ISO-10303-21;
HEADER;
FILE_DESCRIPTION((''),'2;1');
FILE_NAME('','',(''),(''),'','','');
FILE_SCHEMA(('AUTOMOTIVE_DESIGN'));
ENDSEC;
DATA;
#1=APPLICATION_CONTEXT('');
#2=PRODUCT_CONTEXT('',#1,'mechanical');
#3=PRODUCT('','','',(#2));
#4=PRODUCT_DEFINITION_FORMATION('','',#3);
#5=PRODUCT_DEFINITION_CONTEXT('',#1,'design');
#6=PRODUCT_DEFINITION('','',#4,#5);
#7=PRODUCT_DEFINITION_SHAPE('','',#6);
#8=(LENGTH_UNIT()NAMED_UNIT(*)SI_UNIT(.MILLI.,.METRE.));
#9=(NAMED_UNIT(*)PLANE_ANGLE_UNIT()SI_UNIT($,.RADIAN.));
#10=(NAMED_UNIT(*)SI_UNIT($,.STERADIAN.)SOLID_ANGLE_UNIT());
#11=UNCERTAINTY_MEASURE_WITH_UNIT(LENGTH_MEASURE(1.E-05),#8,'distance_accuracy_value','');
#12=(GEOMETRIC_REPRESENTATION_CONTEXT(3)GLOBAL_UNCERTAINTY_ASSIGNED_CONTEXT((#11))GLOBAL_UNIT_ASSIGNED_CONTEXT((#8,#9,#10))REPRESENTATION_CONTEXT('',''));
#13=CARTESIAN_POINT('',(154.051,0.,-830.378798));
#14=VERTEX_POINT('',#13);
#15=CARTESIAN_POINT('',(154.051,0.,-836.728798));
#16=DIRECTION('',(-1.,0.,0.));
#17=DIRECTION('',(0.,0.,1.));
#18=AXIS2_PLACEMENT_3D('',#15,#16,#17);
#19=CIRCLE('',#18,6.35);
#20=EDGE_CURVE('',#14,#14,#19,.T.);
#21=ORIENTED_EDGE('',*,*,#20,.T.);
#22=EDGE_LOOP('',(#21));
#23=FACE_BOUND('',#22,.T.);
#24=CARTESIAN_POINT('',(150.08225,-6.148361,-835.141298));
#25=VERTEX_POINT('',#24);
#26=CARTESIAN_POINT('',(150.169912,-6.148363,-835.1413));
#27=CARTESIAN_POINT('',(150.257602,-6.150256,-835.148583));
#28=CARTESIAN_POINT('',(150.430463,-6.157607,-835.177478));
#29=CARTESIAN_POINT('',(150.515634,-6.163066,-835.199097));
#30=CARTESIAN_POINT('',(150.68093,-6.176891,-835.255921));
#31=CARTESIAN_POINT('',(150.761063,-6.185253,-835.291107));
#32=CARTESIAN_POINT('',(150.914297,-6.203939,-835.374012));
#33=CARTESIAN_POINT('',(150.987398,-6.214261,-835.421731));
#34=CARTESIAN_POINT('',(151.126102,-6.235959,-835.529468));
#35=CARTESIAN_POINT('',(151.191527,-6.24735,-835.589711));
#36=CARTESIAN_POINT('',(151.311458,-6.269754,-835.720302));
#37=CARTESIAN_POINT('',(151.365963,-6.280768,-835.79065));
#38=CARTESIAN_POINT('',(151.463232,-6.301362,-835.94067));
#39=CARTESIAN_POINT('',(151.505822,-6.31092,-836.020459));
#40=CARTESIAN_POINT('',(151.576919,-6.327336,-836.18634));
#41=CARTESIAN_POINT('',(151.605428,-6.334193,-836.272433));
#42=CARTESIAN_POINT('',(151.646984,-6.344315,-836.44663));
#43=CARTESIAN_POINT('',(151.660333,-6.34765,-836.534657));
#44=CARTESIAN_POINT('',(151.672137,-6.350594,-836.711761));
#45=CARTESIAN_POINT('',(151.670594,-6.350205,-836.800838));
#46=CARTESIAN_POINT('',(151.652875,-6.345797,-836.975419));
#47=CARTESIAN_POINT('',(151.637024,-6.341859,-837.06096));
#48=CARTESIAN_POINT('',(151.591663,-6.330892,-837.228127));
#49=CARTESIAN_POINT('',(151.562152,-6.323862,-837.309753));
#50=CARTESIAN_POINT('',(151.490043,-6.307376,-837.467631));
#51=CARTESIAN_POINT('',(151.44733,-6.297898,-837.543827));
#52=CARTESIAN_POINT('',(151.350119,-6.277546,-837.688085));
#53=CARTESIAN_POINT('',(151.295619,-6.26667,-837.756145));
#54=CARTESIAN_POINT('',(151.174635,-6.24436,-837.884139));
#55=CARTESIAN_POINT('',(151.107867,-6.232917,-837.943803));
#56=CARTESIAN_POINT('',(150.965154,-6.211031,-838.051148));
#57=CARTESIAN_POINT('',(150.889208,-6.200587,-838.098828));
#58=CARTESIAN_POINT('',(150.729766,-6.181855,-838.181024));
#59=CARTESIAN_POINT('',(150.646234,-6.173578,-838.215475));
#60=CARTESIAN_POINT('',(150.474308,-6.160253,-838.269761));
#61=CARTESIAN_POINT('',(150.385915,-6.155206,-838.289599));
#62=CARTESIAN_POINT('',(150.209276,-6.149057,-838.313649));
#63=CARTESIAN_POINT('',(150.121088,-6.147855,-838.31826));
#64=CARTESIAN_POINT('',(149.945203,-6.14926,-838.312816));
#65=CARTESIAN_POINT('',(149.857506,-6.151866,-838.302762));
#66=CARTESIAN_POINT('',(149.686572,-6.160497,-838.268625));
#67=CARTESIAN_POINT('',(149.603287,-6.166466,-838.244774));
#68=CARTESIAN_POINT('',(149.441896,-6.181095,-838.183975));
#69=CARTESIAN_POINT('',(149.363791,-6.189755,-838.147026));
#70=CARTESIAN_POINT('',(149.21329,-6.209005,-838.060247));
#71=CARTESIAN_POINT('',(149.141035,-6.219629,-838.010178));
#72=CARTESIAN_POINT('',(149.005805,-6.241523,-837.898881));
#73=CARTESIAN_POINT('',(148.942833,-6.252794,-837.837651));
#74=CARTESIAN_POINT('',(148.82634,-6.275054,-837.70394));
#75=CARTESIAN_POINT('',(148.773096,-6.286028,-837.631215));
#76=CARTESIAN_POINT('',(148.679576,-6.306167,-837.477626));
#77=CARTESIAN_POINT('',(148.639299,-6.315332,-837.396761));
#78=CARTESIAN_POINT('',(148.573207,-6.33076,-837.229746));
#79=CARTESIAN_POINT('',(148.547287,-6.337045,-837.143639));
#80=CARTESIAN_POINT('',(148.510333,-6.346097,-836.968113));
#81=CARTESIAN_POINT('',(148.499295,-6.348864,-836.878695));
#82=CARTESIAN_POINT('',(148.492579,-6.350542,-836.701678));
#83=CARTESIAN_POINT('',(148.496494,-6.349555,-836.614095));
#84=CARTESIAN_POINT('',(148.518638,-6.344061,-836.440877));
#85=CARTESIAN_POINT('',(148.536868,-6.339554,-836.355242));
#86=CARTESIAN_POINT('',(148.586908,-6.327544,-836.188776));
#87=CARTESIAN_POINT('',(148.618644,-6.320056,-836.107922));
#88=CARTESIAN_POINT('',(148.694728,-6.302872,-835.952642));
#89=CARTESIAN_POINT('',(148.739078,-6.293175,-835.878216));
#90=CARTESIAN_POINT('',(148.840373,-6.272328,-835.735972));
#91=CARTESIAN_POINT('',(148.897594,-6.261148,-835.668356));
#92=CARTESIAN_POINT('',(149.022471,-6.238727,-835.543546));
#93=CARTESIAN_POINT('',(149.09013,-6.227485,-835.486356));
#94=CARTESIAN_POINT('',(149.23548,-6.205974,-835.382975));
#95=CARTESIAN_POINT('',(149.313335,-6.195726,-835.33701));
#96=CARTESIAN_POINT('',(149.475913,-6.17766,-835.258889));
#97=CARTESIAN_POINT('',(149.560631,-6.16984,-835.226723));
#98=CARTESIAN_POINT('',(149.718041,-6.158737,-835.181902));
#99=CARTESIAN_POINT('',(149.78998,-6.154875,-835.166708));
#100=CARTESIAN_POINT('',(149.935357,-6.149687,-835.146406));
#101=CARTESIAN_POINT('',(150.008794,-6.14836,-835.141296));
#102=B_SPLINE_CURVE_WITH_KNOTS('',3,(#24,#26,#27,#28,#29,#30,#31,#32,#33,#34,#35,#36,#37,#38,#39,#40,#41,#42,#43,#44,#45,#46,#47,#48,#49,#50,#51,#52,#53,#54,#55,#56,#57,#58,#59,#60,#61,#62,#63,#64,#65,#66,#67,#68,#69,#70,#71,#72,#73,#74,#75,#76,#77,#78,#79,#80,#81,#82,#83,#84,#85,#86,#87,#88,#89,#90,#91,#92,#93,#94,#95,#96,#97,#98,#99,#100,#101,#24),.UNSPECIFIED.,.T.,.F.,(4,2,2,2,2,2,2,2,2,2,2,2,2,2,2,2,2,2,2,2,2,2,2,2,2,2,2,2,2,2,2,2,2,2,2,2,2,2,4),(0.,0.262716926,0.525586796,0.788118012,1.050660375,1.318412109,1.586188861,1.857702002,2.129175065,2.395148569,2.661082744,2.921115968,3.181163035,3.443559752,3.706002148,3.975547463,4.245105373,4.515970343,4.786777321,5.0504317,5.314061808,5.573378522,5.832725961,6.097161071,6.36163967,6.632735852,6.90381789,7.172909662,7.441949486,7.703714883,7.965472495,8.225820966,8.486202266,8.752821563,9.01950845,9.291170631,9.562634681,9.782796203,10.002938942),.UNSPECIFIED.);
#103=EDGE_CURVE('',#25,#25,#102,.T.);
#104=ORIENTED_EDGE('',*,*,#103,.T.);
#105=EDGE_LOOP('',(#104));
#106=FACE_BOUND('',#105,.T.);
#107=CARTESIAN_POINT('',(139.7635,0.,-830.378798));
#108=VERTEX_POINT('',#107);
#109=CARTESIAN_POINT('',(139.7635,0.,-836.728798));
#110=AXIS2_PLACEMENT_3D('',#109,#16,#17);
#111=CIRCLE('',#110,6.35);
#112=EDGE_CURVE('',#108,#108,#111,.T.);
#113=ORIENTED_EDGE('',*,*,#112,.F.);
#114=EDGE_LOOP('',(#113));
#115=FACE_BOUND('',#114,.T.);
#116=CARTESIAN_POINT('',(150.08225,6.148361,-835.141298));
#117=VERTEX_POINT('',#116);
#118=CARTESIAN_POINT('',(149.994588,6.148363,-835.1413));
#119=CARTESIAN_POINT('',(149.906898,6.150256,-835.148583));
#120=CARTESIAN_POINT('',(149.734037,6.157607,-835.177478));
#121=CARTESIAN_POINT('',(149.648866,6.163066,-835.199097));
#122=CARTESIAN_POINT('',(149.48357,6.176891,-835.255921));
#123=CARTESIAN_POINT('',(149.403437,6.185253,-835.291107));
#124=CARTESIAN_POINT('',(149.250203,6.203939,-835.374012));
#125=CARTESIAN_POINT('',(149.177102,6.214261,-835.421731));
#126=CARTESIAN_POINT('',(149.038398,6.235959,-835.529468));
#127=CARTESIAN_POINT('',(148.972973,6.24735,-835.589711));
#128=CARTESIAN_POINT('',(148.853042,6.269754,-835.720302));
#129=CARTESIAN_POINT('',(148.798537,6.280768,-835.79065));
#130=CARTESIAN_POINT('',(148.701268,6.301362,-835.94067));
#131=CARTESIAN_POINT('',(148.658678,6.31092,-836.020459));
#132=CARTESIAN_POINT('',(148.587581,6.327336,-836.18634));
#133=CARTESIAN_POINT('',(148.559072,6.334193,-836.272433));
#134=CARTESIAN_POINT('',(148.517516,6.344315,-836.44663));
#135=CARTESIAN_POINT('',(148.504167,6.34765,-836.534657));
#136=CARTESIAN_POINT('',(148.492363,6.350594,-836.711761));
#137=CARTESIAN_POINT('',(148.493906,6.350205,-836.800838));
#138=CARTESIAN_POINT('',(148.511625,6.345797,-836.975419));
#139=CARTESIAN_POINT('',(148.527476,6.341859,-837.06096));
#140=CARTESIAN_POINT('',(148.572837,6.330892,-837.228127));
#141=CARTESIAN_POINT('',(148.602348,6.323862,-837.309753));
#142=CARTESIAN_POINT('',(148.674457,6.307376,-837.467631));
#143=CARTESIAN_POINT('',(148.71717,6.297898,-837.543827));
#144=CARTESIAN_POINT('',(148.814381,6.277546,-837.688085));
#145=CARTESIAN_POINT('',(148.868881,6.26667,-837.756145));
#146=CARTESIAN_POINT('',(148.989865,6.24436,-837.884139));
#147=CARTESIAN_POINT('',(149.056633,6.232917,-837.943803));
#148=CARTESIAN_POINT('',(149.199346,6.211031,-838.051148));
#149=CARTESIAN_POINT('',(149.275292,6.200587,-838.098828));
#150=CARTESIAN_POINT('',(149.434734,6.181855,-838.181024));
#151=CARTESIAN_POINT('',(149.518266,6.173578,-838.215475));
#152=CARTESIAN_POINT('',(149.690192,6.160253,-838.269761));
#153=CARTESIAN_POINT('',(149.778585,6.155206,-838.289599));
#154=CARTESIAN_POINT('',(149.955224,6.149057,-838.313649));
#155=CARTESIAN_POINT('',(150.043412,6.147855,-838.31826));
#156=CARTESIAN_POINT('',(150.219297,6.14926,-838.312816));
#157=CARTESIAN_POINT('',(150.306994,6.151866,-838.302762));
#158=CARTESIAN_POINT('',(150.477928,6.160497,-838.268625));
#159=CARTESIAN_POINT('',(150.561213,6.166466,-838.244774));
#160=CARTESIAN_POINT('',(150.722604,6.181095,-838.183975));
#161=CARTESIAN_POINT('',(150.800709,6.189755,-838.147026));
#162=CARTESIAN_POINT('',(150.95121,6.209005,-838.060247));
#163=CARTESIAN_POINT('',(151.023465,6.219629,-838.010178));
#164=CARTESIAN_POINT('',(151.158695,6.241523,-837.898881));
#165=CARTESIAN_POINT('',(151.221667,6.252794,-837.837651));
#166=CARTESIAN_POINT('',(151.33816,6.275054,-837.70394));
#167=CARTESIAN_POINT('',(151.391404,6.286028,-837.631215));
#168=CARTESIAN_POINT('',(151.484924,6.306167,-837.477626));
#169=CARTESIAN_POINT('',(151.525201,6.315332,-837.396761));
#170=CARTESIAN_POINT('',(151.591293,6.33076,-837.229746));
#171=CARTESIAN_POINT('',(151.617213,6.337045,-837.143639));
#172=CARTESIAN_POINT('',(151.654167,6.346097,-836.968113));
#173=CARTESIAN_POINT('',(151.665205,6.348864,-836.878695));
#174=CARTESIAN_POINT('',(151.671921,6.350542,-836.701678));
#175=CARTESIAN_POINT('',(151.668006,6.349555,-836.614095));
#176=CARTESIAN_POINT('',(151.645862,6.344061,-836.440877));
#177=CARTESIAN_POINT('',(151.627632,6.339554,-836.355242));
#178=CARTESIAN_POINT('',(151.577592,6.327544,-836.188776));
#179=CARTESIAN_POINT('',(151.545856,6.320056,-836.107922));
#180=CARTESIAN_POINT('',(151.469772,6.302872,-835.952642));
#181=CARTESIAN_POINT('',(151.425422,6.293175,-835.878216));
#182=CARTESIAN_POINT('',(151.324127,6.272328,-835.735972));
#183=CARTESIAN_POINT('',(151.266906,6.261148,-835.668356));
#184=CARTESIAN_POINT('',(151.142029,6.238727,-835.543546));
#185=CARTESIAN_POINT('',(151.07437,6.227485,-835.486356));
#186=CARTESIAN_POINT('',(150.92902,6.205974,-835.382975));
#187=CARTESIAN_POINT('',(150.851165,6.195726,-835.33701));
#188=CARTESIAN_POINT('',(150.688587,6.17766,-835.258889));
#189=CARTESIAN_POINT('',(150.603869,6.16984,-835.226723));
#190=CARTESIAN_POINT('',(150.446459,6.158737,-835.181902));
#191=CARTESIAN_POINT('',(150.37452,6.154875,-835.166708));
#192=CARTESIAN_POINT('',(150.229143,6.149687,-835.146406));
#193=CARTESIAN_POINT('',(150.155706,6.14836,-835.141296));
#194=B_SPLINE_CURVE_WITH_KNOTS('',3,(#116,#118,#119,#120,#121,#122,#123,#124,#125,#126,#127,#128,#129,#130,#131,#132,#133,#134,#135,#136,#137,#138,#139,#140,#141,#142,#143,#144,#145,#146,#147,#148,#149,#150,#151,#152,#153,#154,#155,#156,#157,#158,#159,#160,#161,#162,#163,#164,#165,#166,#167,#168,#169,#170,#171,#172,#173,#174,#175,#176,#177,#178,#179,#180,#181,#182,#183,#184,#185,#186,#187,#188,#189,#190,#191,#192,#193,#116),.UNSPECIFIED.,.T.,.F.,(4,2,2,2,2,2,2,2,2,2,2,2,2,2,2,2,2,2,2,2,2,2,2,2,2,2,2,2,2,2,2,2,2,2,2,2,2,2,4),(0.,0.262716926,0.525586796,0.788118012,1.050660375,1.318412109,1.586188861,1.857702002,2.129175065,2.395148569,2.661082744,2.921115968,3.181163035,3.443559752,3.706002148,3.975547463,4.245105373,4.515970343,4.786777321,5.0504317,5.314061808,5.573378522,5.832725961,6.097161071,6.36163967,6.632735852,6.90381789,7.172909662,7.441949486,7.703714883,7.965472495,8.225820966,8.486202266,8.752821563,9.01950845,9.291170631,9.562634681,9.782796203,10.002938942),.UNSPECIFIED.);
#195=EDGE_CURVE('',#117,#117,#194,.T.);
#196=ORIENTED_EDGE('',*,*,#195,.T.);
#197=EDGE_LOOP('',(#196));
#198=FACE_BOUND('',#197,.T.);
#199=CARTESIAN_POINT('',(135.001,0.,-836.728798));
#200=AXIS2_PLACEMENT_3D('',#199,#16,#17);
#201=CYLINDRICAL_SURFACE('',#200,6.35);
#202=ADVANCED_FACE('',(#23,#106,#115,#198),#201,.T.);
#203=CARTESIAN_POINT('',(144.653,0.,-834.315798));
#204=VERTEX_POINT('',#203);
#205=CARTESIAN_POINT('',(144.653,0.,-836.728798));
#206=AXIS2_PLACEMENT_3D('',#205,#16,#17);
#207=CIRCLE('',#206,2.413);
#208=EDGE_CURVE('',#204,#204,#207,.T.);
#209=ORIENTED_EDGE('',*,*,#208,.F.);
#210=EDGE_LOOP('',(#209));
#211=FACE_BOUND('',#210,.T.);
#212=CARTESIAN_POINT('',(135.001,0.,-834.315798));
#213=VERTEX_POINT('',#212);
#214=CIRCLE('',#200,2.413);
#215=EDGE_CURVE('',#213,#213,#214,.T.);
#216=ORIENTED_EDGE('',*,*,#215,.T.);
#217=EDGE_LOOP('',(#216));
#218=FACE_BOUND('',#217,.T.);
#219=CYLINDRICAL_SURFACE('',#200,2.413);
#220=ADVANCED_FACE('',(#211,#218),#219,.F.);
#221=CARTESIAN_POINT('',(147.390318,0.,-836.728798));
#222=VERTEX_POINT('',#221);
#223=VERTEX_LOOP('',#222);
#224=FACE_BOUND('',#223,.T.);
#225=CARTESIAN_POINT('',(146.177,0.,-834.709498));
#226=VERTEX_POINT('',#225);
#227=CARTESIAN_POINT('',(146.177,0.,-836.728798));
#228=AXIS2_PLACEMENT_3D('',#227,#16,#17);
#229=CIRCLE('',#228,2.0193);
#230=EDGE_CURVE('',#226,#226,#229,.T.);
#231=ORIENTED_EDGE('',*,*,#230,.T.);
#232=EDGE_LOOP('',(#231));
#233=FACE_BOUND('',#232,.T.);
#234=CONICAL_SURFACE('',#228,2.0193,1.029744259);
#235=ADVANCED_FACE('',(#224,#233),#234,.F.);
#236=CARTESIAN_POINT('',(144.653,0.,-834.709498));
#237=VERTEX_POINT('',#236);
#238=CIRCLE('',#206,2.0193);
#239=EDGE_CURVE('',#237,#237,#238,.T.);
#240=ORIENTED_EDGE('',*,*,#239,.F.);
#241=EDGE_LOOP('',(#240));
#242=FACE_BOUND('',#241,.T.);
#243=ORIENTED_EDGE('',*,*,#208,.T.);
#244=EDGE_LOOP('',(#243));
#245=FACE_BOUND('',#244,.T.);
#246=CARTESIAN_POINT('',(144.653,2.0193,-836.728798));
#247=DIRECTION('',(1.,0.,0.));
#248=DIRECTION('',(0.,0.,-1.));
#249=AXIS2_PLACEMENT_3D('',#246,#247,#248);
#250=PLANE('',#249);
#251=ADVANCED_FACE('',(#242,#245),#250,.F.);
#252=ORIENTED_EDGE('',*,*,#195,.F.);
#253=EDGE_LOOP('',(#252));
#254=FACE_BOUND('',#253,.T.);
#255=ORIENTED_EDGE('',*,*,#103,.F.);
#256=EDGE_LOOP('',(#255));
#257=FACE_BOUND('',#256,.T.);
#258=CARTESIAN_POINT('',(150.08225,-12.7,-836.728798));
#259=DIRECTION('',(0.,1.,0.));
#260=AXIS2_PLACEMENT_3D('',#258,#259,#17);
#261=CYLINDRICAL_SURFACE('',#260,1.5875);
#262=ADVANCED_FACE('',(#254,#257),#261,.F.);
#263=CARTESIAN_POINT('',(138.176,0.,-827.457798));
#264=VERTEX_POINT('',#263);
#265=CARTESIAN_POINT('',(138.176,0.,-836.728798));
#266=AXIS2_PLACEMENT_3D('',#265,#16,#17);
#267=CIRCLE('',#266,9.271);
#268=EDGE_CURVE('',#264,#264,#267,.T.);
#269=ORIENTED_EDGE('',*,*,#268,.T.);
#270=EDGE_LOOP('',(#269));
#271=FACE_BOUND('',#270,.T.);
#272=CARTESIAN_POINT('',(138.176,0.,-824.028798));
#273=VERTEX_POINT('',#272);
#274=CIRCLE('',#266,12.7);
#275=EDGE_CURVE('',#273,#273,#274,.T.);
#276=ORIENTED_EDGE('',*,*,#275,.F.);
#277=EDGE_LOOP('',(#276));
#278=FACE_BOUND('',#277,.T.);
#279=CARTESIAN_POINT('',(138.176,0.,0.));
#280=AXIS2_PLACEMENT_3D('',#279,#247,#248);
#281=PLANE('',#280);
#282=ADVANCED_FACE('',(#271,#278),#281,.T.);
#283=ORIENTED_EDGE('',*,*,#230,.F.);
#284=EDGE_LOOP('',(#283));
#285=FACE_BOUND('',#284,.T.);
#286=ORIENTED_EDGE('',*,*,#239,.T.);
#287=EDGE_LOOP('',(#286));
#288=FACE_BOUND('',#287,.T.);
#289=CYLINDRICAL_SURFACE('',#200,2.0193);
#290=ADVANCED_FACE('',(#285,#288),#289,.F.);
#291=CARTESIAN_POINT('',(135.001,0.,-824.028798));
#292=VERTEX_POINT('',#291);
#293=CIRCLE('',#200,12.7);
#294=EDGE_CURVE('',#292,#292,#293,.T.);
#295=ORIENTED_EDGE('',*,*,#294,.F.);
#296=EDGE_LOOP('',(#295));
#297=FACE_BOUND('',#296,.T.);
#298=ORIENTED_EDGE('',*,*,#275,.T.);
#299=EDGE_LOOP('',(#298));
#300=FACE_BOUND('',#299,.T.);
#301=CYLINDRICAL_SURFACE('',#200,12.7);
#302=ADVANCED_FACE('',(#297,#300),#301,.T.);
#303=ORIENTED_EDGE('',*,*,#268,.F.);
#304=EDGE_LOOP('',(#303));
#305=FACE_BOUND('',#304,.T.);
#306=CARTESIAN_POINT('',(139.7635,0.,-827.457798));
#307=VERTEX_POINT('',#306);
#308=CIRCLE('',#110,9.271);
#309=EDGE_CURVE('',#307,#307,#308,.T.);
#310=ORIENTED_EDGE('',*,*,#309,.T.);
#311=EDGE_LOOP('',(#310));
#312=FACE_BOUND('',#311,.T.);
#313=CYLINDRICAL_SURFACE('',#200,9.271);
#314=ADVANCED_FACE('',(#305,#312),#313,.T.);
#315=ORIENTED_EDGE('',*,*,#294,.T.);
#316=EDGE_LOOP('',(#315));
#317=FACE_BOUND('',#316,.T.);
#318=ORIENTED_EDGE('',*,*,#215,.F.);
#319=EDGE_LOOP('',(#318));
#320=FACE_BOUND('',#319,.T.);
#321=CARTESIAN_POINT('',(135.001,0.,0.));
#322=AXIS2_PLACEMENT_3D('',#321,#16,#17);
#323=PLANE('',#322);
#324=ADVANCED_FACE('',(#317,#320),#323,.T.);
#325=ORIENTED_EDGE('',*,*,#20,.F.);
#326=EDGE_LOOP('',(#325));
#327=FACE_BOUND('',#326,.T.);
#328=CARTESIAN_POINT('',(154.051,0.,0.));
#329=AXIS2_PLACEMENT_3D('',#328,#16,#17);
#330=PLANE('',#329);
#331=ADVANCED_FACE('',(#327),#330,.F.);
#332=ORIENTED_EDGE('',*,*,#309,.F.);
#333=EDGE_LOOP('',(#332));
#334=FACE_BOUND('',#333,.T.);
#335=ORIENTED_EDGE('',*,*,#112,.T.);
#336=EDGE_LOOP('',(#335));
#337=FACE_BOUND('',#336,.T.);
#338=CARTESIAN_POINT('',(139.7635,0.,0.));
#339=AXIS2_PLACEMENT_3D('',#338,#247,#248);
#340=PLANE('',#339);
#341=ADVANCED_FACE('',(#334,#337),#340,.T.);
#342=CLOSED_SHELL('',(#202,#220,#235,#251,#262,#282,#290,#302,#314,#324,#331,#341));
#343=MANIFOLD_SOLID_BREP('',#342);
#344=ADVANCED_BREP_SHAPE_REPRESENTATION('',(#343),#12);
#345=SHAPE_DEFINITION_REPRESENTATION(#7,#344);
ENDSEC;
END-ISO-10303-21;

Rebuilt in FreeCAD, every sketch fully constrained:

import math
import FreeCAD as App
import Part
import Sketcher
from FreeCAD import Vector
Q = App.Units.Quantity

doc = App.newDocument("Part")
body = doc.addObject("PartDesign::Body", "Body")

sketch1 = body.newObject("Sketcher::SketchObject", "Sketch")
sketch1.AttachmentSupport = (doc.getObject("XZ_Plane"), [""])
sketch1.MapMode = "FlatFace"
sketch1.addGeometry(Part.LineSegment(Vector(154.051, -836.728798, 0), Vector(154.051, -843.078798, 0)), False)
sketch1.addGeometry(Part.LineSegment(Vector(154.051, -843.078798, 0), Vector(139.7635, -843.078798, 0)), False)
sketch1.addGeometry(Part.LineSegment(Vector(139.7635, -843.078798, 0), Vector(139.7635, -845.999798, 0)), False)
sketch1.addGeometry(Part.LineSegment(Vector(139.7635, -845.999798, 0), Vector(138.176, -845.999798, 0)), False)
sketch1.addGeometry(Part.LineSegment(Vector(138.176, -845.999798, 0), Vector(138.176, -849.428798, 0)), False)
sketch1.addGeometry(Part.LineSegment(Vector(138.176, -849.428798, 0), Vector(135.001, -849.428798, 0)), False)
sketch1.addGeometry(Part.LineSegment(Vector(135.001, -849.428798, 0), Vector(135.001, -836.728798, 0)), False)
sketch1.addGeometry(Part.LineSegment(Vector(135.001, -836.728798, 0), Vector(148.49475, -836.728798, 0)), False)
sketch1.addGeometry(Part.ArcOfCircle(Part.Circle(Vector(150.08225, -836.728798, 0), Vector(0, 0, 1), 1.5875), math.radians(0), math.radians(180)), False)
sketch1.addGeometry(Part.LineSegment(Vector(151.66975, -836.728798, 0), Vector(154.051, -836.728798, 0)), False)
sketch1.addGeometry(Part.LineSegment(Vector(135.001, -836.728798, 0), Vector(154.051, -836.728798, 0)), True)
sketch1.addConstraint(Sketcher.Constraint("Coincident", 0, 2, 1, 1))
sketch1.addConstraint(Sketcher.Constraint("Coincident", 1, 2, 2, 1))
sketch1.addConstraint(Sketcher.Constraint("Coincident", 2, 2, 3, 1))
sketch1.addConstraint(Sketcher.Constraint("Coincident", 3, 2, 4, 1))
sketch1.addConstraint(Sketcher.Constraint("Coincident", 4, 2, 5, 1))
sketch1.addConstraint(Sketcher.Constraint("Coincident", 5, 2, 6, 1))
sketch1.addConstraint(Sketcher.Constraint("Coincident", 6, 2, 7, 1))
sketch1.addConstraint(Sketcher.Constraint("Coincident", 7, 2, 8, 2))
sketch1.addConstraint(Sketcher.Constraint("Coincident", 8, 1, 9, 1))
sketch1.addConstraint(Sketcher.Constraint("Coincident", 9, 2, 0, 1))
sketch1.addConstraint(Sketcher.Constraint("Vertical", 0))
sketch1.addConstraint(Sketcher.Constraint("Horizontal", 1))
sketch1.addConstraint(Sketcher.Constraint("Vertical", 2))
sketch1.addConstraint(Sketcher.Constraint("Horizontal", 3))
sketch1.addConstraint(Sketcher.Constraint("Vertical", 4))
sketch1.addConstraint(Sketcher.Constraint("Horizontal", 5))
sketch1.addConstraint(Sketcher.Constraint("Vertical", 6))
sketch1.addConstraint(Sketcher.Constraint("Horizontal", 7))
sketch1.addConstraint(Sketcher.Constraint("Horizontal", 9))
sketch1.addConstraint(Sketcher.Constraint("Horizontal", 10))
sketch1.addConstraint(Sketcher.Constraint("Coincident", 10, 1, 6, 2))
sketch1.addConstraint(Sketcher.Constraint("Coincident", 10, 2, 9, 2))
sketch1.addConstraint(Sketcher.Constraint("Horizontal", 8, 3, 6, 2))
sketch1.addConstraint(Sketcher.Constraint("DistanceY", 6, 1, 6, 2, Q("0.5 in")))
sketch1.addConstraint(Sketcher.Constraint("Radius", 8, Q("0.0625 in")))
sketch1.addConstraint(Sketcher.Constraint("DistanceX", 10, 1, 10, 2, Q("0.75 in")))
sketch1.addConstraint(Sketcher.Constraint("DistanceY", 0, 2, 0, 1, Q("0.25 in")))
sketch1.addConstraint(Sketcher.Constraint("DistanceX", 1, 2, 1, 1, Q("0.5625 in")))
sketch1.addConstraint(Sketcher.Constraint("DistanceX", 3, 2, 3, 1, Q("0.0625 in")))
sketch1.addConstraint(Sketcher.Constraint("DistanceX", 7, 1, 7, 2, Q("0.53125 in")))
sketch1.addConstraint(Sketcher.Constraint("DistanceY", 2, 2, 2, 1, Q("0.115 in")))
sketch1.addConstraint(Sketcher.Constraint("DistanceX", -1, 1, 3, 2, Q("5.44 in")))
sketch1.addConstraint(Sketcher.Constraint("DistanceY", 8, 3, -1, 1, Q("836.728798 mm")))
revolution = body.newObject("PartDesign::Revolution", "Revolution")
revolution.Profile = sketch1
revolution.ReferenceAxis = (sketch1, ["Axis0"])
revolution.Angle = 360

sketch2 = body.newObject("Sketcher::SketchObject", "Sketch001")
sketch2.AttachmentSupport = (doc.getObject("YZ_Plane"), [""])
sketch2.MapMode = "FlatFace"
sketch2.AttachmentOffset = App.Placement(Vector(0, 0, 5.315 * 25.4), App.Rotation())
sketch2.addGeometry(Part.Circle(Vector(0, -836.728798, 0), Vector(0, 0, 1), 2.0193), False)
sketch2.addConstraint(Sketcher.Constraint("PointOnObject", 0, 3, -2))
sketch2.addConstraint(Sketcher.Constraint("Diameter", 0, Q("0.159 in")))
sketch2.addConstraint(Sketcher.Constraint("DistanceY", 0, 3, -1, 1, Q("836.728798 mm")))
doc.recompute()
hole = body.newObject("PartDesign::Hole", "Hole")
hole.Profile = sketch2
hole.ThreadType = "None"
hole.Diameter = Q("0.159 in")
hole.DepthType = "Dimension"
hole.Depth = Q("0.44 in")
hole.DrillPoint = "Angled"
hole.DrillPointAngle = 118
hole.HoleCutType = "Counterbore"
hole.HoleCutDiameter = Q("0.19 in")
hole.HoleCutDepth = Q("0.38 in")
hole.Reversed = True

sketch3 = body.newObject("Sketcher::SketchObject", "Sketch002")
sketch3.AttachmentSupport = (doc.getObject("XZ_Plane"), [""])
sketch3.MapMode = "FlatFace"
sketch3.addGeometry(Part.Circle(Vector(150.08225, -836.728798, 0), Vector(0, 0, 1), 1.5875), False)
sketch3.addConstraint(Sketcher.Constraint("Diameter", 0, Q("0.125 in")))
sketch3.addConstraint(Sketcher.Constraint("DistanceX", -1, 1, 0, 3, Q("150.08225 mm")))
sketch3.addConstraint(Sketcher.Constraint("DistanceY", 0, 3, -1, 1, Q("836.728798 mm")))
pocket1 = body.newObject("PartDesign::Pocket", "Pocket")
pocket1.Profile = sketch3
pocket1.Type = "ThroughAll"
pocket1.Midplane = True

doc.recompute()
